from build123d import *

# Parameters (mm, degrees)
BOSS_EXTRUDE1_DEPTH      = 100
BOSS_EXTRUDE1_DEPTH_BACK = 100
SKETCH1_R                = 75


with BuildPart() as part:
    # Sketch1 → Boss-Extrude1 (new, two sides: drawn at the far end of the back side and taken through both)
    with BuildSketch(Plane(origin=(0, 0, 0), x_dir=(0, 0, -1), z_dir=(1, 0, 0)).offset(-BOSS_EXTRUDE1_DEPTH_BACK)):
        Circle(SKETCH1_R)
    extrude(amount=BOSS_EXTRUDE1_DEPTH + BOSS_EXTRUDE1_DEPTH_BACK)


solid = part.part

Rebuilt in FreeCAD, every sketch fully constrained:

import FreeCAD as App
import Part
import Sketcher
Q = App.Units.Quantity

doc = App.newDocument("Part")
body = doc.addObject("PartDesign::Body", "Body")

sketch1 = body.newObject("Sketcher::SketchObject", "Sketch")
sketch1.AttachmentSupport = (doc.getObject("YZ_Plane"), [""])
sketch1.MapMode = "FlatFace"
sketch1.addGeometry(Part.Circle(App.Vector(0, 0, 0), App.Vector(0, 0, 1), 75), False)
sketch1.addConstraint([
    Sketcher.Constraint("Coincident", 0, 3, -1, 1),
    Sketcher.Constraint("Diameter", 0, Q("150 mm")),
])
pad1 = body.newObject("PartDesign::Pad", "Pad")
pad1.Profile = sketch1
pad1.Type = "TwoLengths"
pad1.Length = 100
pad1.Length2 = 100

doc.recompute()
